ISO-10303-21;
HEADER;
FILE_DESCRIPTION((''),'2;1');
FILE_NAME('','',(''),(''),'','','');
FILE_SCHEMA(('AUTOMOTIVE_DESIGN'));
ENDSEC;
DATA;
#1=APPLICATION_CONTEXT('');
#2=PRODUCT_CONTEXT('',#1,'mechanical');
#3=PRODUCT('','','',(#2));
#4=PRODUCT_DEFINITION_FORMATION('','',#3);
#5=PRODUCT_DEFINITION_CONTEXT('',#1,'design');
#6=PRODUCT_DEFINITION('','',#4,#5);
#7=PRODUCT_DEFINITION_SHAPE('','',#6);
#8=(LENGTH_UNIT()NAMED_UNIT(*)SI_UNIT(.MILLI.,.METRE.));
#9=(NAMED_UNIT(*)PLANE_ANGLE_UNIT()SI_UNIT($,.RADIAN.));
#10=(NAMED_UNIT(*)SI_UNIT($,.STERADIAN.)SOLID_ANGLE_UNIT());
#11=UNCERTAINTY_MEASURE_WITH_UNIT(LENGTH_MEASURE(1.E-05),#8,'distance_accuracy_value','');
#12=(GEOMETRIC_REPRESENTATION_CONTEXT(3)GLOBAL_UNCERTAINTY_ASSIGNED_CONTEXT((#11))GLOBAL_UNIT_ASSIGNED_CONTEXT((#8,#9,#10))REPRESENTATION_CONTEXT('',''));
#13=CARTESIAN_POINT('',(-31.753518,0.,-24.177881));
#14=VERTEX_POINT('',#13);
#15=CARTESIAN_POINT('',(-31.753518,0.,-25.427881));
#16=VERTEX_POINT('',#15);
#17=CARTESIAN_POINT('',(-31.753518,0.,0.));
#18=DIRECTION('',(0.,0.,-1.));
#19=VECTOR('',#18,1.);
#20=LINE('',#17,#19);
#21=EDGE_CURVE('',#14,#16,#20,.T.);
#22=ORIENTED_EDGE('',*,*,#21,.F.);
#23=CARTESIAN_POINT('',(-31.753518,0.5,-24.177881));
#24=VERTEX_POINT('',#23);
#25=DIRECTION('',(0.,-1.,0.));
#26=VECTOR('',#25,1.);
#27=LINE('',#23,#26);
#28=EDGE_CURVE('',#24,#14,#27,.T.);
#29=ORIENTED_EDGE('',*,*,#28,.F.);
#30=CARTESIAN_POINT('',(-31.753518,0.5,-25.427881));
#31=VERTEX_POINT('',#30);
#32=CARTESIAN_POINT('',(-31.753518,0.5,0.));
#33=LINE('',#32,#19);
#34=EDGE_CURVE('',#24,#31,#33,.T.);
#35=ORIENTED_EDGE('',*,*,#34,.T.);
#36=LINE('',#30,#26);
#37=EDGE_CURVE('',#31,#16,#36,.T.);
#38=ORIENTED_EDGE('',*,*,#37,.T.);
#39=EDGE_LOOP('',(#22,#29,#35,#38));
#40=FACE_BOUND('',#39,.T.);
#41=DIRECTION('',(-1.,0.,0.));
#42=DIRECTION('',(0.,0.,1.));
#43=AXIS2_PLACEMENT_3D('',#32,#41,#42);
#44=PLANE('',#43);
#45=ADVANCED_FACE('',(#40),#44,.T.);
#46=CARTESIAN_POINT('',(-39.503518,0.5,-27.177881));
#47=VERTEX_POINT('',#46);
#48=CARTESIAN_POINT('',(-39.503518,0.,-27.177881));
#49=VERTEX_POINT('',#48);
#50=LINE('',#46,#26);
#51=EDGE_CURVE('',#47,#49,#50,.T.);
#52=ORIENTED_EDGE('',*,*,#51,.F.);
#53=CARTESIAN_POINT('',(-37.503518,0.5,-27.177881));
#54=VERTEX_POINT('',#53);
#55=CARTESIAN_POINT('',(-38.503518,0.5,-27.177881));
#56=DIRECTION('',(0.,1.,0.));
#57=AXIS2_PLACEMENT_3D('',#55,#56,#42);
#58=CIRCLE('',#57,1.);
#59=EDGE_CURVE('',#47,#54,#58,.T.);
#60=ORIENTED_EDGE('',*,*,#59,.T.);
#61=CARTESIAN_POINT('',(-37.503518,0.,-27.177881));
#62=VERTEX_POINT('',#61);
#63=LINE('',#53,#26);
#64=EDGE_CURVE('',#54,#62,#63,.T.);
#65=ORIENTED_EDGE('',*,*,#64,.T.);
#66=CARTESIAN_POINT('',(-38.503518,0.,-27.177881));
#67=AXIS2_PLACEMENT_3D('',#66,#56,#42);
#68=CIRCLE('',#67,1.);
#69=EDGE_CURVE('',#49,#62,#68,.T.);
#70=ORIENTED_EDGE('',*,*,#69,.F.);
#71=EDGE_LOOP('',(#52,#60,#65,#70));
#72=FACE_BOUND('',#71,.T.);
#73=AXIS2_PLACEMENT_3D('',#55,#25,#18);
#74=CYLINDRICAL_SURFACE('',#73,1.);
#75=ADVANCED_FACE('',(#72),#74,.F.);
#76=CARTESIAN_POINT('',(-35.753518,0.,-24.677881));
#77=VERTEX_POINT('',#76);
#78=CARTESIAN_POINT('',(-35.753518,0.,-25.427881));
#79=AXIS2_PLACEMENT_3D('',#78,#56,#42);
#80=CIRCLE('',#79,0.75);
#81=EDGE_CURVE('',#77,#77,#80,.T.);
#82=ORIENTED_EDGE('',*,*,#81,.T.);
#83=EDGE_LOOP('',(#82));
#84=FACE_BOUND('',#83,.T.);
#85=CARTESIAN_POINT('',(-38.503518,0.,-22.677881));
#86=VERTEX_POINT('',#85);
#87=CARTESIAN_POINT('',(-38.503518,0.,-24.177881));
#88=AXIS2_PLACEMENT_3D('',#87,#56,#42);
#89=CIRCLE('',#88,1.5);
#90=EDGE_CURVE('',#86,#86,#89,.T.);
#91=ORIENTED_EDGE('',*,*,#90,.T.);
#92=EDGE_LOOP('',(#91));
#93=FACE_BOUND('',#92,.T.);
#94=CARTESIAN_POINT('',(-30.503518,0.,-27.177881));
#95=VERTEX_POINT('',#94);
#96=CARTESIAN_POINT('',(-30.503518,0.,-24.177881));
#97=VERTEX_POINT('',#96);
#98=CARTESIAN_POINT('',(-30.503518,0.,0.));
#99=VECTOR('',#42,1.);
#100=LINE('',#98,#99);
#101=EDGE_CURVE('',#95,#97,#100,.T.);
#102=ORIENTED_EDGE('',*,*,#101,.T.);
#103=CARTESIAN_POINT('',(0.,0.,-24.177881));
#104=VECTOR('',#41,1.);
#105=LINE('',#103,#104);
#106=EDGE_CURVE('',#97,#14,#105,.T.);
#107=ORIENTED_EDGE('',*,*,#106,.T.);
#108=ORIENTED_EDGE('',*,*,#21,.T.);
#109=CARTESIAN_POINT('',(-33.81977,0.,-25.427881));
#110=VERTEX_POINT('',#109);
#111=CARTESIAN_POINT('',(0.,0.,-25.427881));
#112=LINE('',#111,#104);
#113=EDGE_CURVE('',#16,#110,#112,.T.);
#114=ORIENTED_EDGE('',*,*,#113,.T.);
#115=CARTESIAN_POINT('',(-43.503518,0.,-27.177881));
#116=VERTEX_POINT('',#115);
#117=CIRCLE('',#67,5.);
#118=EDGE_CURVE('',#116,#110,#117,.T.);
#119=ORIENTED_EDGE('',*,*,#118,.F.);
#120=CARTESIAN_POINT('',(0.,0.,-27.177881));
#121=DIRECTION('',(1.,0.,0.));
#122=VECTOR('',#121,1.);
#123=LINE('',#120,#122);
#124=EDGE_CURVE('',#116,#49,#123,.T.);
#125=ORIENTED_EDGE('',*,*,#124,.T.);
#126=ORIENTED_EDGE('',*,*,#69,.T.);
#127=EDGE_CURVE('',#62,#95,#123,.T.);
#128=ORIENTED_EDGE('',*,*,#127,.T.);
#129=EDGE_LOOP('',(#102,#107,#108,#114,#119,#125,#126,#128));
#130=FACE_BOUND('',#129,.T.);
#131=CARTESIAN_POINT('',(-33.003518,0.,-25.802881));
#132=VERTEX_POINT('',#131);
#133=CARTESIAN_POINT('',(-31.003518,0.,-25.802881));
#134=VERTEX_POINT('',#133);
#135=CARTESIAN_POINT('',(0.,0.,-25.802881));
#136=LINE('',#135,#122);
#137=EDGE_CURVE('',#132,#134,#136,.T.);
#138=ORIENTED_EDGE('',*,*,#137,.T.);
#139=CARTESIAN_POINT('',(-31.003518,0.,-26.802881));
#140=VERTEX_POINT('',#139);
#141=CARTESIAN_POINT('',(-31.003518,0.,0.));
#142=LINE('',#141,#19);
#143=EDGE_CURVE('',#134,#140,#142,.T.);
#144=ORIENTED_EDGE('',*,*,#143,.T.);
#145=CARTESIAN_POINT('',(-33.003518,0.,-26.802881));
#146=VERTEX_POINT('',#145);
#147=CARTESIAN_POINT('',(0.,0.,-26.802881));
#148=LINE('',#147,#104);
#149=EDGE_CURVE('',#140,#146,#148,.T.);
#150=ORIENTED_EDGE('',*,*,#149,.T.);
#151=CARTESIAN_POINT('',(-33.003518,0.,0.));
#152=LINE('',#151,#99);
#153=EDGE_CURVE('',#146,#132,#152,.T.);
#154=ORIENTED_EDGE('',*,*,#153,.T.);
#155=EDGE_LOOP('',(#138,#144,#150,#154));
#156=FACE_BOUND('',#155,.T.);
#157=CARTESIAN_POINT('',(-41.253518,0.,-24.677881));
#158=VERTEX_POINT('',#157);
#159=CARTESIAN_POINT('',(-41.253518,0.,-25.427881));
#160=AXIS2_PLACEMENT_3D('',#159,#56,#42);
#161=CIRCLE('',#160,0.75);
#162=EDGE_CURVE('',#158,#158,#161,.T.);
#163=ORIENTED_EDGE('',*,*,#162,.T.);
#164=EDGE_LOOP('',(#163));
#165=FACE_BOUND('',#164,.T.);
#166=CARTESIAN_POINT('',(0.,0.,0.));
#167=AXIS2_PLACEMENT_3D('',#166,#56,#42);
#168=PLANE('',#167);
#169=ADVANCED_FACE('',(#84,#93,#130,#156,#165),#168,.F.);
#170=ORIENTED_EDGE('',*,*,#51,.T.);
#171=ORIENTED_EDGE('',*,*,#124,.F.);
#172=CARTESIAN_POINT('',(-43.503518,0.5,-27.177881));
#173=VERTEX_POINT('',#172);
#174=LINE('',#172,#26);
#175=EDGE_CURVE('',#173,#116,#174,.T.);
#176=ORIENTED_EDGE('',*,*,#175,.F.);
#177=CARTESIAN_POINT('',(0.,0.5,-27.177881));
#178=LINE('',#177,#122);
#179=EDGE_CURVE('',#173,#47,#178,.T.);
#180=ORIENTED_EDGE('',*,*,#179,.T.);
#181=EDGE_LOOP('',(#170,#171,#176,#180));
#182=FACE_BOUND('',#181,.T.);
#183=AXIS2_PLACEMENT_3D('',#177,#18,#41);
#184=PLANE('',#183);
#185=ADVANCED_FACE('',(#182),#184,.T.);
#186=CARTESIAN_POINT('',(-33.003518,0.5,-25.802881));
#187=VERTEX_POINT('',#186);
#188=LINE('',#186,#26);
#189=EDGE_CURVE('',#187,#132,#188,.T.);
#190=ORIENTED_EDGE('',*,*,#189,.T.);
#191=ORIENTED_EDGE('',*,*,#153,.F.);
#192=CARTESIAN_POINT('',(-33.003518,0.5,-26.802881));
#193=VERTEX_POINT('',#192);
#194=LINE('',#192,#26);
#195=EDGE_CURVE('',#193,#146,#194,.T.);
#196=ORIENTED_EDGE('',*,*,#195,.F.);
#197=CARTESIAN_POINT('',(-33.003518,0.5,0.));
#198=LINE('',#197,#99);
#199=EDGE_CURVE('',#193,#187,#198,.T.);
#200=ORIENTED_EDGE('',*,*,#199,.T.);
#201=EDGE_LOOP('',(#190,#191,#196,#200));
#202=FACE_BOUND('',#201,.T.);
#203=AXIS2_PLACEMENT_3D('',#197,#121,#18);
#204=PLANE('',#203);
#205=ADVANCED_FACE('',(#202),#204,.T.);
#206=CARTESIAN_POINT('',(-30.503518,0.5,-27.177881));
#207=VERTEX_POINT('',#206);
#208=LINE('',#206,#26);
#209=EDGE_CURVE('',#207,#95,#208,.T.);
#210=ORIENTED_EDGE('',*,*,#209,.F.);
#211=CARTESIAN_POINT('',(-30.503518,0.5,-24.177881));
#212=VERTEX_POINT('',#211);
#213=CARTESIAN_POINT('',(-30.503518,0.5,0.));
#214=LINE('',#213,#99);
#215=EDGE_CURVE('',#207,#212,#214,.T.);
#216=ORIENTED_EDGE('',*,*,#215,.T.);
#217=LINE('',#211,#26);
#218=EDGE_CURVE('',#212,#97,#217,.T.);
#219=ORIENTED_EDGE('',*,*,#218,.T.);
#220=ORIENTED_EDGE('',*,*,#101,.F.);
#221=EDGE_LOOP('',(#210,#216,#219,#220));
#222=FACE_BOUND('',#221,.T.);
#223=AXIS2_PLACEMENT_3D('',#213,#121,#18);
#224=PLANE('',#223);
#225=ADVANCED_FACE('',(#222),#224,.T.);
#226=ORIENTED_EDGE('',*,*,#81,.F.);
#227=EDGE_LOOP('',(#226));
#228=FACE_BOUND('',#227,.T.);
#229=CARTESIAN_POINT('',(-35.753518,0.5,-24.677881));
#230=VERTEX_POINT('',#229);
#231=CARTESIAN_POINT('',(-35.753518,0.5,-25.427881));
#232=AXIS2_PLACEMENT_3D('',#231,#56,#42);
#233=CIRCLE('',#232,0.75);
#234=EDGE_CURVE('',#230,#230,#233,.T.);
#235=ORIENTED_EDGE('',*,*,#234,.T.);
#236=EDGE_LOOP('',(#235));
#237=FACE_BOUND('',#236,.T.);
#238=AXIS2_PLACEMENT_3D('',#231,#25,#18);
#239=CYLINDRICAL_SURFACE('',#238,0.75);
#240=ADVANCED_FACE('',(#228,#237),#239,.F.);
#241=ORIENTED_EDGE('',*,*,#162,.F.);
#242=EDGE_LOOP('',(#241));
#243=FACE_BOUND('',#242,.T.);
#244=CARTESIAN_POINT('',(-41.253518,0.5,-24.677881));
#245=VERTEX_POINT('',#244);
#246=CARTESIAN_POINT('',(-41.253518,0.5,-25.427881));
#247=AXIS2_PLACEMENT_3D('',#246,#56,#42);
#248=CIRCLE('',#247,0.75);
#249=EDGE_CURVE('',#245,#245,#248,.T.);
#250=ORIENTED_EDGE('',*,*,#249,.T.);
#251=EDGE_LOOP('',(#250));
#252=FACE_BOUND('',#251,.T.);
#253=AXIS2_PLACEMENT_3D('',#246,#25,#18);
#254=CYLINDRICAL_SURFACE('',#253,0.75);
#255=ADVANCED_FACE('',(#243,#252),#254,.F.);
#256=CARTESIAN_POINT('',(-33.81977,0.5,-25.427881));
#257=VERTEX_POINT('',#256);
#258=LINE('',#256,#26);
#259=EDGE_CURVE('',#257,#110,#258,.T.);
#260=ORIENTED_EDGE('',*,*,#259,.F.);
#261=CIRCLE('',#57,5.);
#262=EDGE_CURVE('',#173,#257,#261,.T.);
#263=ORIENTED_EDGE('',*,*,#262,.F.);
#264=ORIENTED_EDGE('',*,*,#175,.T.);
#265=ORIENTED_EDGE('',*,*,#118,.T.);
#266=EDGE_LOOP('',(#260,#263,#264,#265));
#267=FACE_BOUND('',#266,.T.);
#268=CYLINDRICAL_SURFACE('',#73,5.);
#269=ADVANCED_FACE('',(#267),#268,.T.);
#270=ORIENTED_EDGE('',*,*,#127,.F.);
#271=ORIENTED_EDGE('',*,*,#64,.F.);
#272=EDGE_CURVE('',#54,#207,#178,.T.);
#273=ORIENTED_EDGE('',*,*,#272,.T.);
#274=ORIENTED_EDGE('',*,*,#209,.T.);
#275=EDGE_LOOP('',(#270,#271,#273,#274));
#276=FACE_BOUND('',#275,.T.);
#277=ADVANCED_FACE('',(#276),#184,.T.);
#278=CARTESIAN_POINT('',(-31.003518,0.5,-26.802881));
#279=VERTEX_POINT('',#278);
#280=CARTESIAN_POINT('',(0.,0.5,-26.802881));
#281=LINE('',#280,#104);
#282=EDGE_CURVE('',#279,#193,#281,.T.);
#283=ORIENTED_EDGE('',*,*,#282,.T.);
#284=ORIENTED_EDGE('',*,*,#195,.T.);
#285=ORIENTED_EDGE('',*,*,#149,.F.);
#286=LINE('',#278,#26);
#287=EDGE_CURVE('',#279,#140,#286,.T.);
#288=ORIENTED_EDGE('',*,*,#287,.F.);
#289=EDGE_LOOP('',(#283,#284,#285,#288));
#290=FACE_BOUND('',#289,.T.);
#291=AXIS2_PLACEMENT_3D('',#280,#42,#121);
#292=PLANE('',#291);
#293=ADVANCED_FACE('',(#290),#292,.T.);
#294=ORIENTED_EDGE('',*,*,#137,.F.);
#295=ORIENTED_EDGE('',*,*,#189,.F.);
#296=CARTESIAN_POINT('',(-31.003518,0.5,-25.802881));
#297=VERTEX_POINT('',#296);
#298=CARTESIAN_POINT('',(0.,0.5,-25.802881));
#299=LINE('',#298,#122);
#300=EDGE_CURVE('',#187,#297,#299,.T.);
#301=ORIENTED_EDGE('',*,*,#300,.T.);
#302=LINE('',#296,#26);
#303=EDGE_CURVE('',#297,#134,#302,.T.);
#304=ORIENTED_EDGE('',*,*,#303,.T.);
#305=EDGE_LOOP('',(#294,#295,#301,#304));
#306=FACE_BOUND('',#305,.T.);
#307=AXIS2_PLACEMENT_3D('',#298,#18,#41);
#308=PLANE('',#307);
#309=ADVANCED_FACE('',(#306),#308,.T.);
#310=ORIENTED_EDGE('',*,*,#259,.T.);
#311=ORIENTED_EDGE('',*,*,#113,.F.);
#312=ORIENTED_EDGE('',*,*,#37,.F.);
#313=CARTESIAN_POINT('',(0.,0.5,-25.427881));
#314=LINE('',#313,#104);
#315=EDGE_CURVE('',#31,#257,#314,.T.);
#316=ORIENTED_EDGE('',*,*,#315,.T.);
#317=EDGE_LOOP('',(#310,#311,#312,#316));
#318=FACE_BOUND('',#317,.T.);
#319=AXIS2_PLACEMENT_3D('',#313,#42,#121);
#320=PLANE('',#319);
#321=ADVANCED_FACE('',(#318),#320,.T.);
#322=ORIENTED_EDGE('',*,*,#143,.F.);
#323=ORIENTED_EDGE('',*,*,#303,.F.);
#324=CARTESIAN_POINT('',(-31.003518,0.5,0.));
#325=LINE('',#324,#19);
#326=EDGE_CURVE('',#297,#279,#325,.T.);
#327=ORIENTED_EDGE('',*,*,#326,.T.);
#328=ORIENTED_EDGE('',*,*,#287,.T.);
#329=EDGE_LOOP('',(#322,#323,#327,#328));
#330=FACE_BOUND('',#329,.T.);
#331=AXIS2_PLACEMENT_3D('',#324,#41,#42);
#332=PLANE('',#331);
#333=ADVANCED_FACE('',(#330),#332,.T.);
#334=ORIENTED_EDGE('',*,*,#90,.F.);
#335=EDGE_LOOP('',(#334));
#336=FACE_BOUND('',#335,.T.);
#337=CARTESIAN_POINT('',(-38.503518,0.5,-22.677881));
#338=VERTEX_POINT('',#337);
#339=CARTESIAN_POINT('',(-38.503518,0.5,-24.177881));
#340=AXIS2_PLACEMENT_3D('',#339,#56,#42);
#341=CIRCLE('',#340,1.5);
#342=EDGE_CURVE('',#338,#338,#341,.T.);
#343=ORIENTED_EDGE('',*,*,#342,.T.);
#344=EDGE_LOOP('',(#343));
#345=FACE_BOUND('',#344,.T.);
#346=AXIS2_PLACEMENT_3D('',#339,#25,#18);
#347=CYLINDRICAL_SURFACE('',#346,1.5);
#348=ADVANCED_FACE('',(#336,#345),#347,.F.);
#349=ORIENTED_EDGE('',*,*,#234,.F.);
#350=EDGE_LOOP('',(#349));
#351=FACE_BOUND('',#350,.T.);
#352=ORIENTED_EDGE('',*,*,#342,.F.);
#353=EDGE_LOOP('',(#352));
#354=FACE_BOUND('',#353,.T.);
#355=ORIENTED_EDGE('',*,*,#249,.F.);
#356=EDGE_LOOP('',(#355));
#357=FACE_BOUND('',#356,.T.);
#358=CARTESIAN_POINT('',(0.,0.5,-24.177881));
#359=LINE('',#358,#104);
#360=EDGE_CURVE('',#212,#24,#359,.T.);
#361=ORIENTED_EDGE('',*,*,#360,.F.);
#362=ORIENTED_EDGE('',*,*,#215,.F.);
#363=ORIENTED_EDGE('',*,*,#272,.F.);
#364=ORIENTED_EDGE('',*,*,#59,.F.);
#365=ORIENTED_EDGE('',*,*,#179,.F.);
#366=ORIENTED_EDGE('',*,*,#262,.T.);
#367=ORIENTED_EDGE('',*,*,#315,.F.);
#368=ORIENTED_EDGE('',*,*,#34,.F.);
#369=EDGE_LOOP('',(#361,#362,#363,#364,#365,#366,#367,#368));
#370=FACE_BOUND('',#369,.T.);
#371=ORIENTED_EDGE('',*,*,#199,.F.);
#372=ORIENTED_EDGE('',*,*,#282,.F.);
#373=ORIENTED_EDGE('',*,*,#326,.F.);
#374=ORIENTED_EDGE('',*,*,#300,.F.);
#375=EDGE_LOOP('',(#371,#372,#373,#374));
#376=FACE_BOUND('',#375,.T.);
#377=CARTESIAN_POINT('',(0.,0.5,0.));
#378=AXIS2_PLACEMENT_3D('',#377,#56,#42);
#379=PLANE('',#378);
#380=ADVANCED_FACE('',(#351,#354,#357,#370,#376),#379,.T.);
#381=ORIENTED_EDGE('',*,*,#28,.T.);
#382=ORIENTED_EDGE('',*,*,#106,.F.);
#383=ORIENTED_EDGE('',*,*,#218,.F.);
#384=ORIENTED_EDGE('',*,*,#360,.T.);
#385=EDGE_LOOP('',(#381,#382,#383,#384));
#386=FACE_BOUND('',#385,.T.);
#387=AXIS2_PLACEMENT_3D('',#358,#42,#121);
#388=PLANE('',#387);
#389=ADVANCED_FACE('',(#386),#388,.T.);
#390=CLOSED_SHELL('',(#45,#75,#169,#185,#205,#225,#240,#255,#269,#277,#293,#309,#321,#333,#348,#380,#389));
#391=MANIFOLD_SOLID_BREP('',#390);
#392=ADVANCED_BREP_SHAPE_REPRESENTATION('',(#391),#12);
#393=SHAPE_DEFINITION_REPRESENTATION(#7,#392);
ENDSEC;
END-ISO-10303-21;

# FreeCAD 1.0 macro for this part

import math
import FreeCAD as App
import Part
import Sketcher

doc = App.newDocument("Part")
body = doc.addObject("PartDesign::Body", "Body")

# Sketch on XZ plane
sketch1 = body.newObject("Sketcher::SketchObject", "Sketch")
sketch1.AttachmentSupport = (doc.getObject("XZ_Plane"), [""])
sketch1.MapMode = "FlatFace"
sketch1.addGeometry([
    Part.LineSegment(App.Vector(-39.5, -27.2, 0), App.Vector(-43.5, -27.2, 0)),  # 0
    Part.ArcOfCircle(Part.Circle(App.Vector(-38.5, -27.2, 0), App.Vector(0, 0, 1), 5), math.radians(20), math.radians(180)),  # 1
    Part.LineSegment(App.Vector(-33.8, -25.4, 0), App.Vector(-31.8, -25.4, 0)),  # 2
    Part.LineSegment(App.Vector(-31.8, -25.4, 0), App.Vector(-31.8, -24.2, 0)),  # 3
    Part.LineSegment(App.Vector(-31.8, -24.2, 0), App.Vector(-30.5, -24.2, 0)),  # 4
    Part.LineSegment(App.Vector(-30.5, -24.2, 0), App.Vector(-30.5, -27.2, 0)),  # 5
    Part.LineSegment(App.Vector(-30.5, -27.2, 0), App.Vector(-37.5, -27.2, 0)),  # 6
    Part.ArcOfCircle(Part.Circle(App.Vector(-38.5, -27.2, 0), App.Vector(0, 0, 1), 1), math.radians(0), math.radians(90)),  # 7
    Part.ArcOfCircle(Part.Circle(App.Vector(-38.5, -27.2, 0), App.Vector(0, 0, 1), 1), math.radians(90), math.radians(180)),  # 8
    Part.ArcOfCircle(Part.Circle(App.Vector(-38.5, -24.2, 0), App.Vector(0, 0, 1), 1.5), math.radians(0), math.radians(180)),  # 9
    Part.ArcOfCircle(Part.Circle(App.Vector(-38.5, -24.2, 0), App.Vector(0, 0, 1), 1.5), math.radians(-180), math.radians(-90)),  # 10
    Part.ArcOfCircle(Part.Circle(App.Vector(-38.5, -24.2, 0), App.Vector(0, 0, 1), 1.5), math.radians(-90), math.radians(0)),  # 11
    Part.Circle(App.Vector(-41.3, -25.4, 0), App.Vector(0, 0, 1), 0.8),  # 12
    Part.Circle(App.Vector(-35.8, -25.4, 0), App.Vector(0, 0, 1), 0.8),  # 13
    Part.LineSegment(App.Vector(-33, -26.8, 0), App.Vector(-31, -26.8, 0)),  # 14
    Part.LineSegment(App.Vector(-31, -26.8, 0), App.Vector(-31, -25.8, 0)),  # 15
    Part.LineSegment(App.Vector(-31, -25.8, 0), App.Vector(-33, -25.8, 0)),  # 16
    Part.LineSegment(App.Vector(-33, -25.8, 0), App.Vector(-33, -26.8, 0)),  # 17
], False)
sketch1.addConstraint([
    Sketcher.Constraint("Coincident", 0, 2, 1, 2),
    Sketcher.Constraint("Coincident", 1, 1, 2, 1),
    Sketcher.Constraint("Coincident", 2, 2, 3, 1),
    Sketcher.Constraint("Coincident", 3, 2, 4, 1),
    Sketcher.Constraint("Coincident", 4, 2, 5, 1),
    Sketcher.Constraint("Coincident", 5, 2, 6, 1),
    Sketcher.Constraint("Coincident", 6, 2, 7, 1),
    Sketcher.Constraint("Tangent", 7, 2, 8, 1),
    Sketcher.Constraint("Coincident", 8, 2, 0, 1),
    Sketcher.Constraint("Tangent", 9, 2, 10, 1),
    Sketcher.Constraint("Tangent", 10, 2, 11, 1),
    Sketcher.Constraint("Tangent", 11, 2, 9, 1),
    Sketcher.Constraint("Coincident", 14, 2, 15, 1),
    Sketcher.Constraint("Coincident", 15, 2, 16, 1),
    Sketcher.Constraint("Coincident", 16, 2, 17, 1),
    Sketcher.Constraint("Coincident", 17, 2, 14, 1),
    Sketcher.Constraint("Horizontal", 0),
    Sketcher.Constraint("Horizontal", 2),
    Sketcher.Constraint("Vertical", 3),
    Sketcher.Constraint("Horizontal", 4),
    Sketcher.Constraint("Vertical", 5),
    Sketcher.Constraint("Horizontal", 6),
    Sketcher.Constraint("Horizontal", 14),
    Sketcher.Constraint("Vertical", 15),
    Sketcher.Constraint("Horizontal", 16),
    Sketcher.Constraint("Vertical", 17),
    Sketcher.Constraint("Coincident", 7, 3, 1, 3),
    Sketcher.Constraint("Equal", 7, 8),
    Sketcher.Constraint("Equal", 12, 13),
    Sketcher.Constraint("Horizontal", 12, 3, 13, 3),
    Sketcher.Constraint("Horizontal", 8, 3, 0, 2),
    Sketcher.Constraint("Horizontal", 13, 3, 1, 1),
    Sketcher.Constraint("Horizontal", 11, 3, 3, 2),
    Sketcher.Constraint("Horizontal", 0, 2, 5, 2),
    Sketcher.Constraint("Horizontal", 4, 2, 9, 2),
    Sketcher.Constraint("Horizontal", 9, 2, 11, 2),
    Sketcher.Constraint("Vertical", 8, 3, 9, 3),
    Sketcher.Constraint("Vertical", 11, 3, 7, 2),
    Sketcher.Constraint("Vertical", 7, 2, 10, 2),
    Sketcher.Constraint("Equal", 4, 3),
    Sketcher.Constraint("Radius", 1, 5.0),
    Sketcher.Constraint("Radius", 7, 1.0),
    Sketcher.Constraint("Diameter", 12, 1.5),
    Sketcher.Constraint("Radius", 9, 1.5),
    Sketcher.Constraint("DistanceX", 6, 2, 6, 1, 7.0),
    Sketcher.Constraint("DistanceX", 14, 1, 14, 2, 2.0),
    Sketcher.Constraint("DistanceY", 5, 2, 5, 1, 3.0),
    Sketcher.Constraint("DistanceY", 15, 1, 15, 2, 1.0),
    Sketcher.Constraint("DistanceX", 13, 3, 2, 2, 4.0),
    Sketcher.Constraint("DistanceX", 4, 1, 4, 2, 1.25),
    Sketcher.Constraint("DistanceX", 14, 2, 5, 2, 0.5),
    Sketcher.Constraint("DistanceX", 12, 3, 9, 3, 2.75),
    Sketcher.Constraint("DistanceY", 5, 2, 14, 2, 0.375),
    Sketcher.Constraint("DistanceX", 1, 3, -1, 1, 38.503518),
    Sketcher.Constraint("DistanceY", 1, 3, -1, 1, 27.177881),
])
pad1 = body.newObject("PartDesign::Pad", "Pad")
pad1.Profile = sketch1
pad1.Length = 0.5
pad1.Reversed = True

doc.recompute()
